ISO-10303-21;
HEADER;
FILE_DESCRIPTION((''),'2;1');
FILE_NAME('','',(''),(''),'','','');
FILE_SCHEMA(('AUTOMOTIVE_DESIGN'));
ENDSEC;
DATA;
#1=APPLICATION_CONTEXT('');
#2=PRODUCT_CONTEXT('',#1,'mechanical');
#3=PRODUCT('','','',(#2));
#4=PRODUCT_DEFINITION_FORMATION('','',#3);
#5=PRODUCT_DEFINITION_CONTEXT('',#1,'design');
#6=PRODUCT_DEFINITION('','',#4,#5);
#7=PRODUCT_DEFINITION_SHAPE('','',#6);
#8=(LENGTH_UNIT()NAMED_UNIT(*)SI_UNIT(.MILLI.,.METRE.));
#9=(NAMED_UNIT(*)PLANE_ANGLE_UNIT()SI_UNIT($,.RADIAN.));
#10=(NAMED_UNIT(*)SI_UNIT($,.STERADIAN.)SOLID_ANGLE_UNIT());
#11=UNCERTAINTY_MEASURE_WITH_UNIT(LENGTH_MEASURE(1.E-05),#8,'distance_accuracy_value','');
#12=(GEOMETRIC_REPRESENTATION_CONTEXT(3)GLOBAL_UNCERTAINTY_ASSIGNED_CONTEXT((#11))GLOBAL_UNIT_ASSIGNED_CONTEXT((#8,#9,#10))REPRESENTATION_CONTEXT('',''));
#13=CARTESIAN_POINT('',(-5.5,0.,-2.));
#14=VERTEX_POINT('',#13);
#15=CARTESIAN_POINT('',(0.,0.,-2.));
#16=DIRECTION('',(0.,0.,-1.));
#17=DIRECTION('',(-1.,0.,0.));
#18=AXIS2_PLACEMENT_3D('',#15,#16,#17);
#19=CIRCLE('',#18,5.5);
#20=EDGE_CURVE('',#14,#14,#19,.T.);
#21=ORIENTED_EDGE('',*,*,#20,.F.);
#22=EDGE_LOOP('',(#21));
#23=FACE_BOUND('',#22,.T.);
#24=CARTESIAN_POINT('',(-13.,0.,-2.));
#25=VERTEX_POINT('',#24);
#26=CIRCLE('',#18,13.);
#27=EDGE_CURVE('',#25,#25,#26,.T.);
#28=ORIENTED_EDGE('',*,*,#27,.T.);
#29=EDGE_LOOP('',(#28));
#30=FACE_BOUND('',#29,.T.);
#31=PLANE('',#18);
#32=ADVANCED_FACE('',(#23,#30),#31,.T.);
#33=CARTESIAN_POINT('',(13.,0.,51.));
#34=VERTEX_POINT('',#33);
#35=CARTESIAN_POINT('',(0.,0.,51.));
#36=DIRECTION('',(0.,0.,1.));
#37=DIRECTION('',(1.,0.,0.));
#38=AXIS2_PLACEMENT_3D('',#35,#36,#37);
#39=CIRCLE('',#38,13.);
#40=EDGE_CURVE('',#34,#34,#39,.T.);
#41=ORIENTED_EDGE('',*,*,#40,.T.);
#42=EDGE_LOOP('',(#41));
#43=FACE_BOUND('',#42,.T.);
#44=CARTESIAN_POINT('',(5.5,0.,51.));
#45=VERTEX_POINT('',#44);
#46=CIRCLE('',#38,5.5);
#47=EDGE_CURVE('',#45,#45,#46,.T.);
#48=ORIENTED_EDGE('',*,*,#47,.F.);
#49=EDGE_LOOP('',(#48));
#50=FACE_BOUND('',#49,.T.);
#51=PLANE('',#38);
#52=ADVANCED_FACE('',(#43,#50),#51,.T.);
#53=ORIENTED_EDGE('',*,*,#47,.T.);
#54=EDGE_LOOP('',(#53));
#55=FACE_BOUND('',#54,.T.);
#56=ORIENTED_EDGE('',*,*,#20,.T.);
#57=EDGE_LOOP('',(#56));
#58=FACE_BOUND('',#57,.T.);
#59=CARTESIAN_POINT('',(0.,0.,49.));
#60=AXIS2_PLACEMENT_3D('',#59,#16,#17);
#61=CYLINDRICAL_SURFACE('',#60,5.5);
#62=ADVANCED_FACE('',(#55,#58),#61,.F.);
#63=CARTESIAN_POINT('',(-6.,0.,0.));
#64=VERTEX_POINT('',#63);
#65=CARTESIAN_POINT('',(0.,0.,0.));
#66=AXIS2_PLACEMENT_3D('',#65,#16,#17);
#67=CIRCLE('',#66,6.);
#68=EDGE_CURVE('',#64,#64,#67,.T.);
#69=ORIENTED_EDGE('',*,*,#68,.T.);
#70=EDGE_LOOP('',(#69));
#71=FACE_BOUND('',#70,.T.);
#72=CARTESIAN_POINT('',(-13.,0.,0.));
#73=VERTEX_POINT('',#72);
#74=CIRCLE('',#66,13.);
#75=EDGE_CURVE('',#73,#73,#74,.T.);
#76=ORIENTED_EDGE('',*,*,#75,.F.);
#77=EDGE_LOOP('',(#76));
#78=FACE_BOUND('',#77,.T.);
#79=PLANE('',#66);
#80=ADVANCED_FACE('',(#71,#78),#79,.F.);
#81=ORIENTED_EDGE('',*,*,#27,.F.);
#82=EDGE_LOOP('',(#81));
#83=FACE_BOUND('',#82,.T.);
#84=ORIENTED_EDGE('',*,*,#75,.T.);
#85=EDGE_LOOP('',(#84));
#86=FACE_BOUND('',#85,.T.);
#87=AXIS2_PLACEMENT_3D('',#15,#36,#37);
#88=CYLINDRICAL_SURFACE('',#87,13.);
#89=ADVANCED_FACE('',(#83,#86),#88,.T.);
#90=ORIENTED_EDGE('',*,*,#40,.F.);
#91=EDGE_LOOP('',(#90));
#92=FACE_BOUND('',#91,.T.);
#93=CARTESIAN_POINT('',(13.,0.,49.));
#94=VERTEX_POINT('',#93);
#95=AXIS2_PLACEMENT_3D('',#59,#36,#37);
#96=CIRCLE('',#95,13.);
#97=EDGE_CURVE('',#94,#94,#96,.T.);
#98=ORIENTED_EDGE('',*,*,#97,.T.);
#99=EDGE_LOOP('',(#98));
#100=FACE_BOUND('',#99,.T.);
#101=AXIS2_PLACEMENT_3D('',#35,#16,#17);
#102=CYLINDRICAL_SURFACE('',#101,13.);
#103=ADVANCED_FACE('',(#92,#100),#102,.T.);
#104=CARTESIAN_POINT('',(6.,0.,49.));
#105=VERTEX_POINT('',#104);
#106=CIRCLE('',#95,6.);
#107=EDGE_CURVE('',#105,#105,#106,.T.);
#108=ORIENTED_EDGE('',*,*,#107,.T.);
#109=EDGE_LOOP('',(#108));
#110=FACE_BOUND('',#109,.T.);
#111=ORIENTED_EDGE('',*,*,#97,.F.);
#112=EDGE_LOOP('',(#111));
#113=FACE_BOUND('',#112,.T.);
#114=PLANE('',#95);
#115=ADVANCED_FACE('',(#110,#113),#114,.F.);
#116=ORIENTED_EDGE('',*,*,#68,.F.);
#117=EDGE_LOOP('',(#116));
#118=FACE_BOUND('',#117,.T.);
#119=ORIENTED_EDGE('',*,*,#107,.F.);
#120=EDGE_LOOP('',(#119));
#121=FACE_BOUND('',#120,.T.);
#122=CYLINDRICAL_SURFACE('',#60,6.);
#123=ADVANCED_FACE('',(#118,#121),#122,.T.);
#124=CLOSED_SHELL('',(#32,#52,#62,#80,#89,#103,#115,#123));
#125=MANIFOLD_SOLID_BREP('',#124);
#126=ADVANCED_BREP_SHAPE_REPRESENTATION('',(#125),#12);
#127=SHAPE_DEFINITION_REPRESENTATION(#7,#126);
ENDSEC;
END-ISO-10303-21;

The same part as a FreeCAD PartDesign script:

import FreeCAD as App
import Part
import Sketcher
Q = App.Units.Quantity

doc = App.newDocument("Part")
body = doc.addObject("PartDesign::Body", "Body")

# Sketch on XY plane
sketch1 = doc.addObject("Sketcher::SketchObject", "Sketch")
body.addObject(sketch1)
sketch1.AttachmentSupport = (doc.XY_Plane, [""])
sketch1.MapMode = "FlatFace"
sketch1.addGeometry([
    Part.Circle(App.Vector(0, 0, 0), App.Vector(0, 0, 1), 6),
    Part.Circle(App.Vector(0, 0, 0), App.Vector(0, 0, 1), 6),
], False)
sketch1.addConstraint([
    Sketcher.Constraint("Coincident", 0, 3, -1, 1),
    Sketcher.Constraint("Coincident", 1, 3, -1, 1),
    Sketcher.Constraint("Diameter", 0, Q("12 mm")),
    Sketcher.Constraint("Diameter", 1, Q("11 mm")),
])
pad1 = doc.addObject("PartDesign::Pad", "Pad")
body.addObject(pad1)
pad1.Profile = sketch1
pad1.Length = 49

# Sketch on XY plane
sketch2 = doc.addObject("Sketcher::SketchObject", "Sketch001")
body.addObject(sketch2)
sketch2.AttachmentSupport = (doc.XY_Plane, [""])
sketch2.MapMode = "FlatFace"
sketch2.AttachmentOffset = App.Placement(App.Vector(0, 0, 49), App.Rotation())
sketch2.addGeometry([
    Part.Circle(App.Vector(0, 0, 0), App.Vector(0, 0, 1), 13),
    Part.Circle(App.Vector(0, 0, 0), App.Vector(0, 0, 1), 6),
], False)
sketch2.addConstraint([
    Sketcher.Constraint("Coincident", 0, 3, -1, 1),
    Sketcher.Constraint("Coincident", 1, 3, -1, 1),
    Sketcher.Constraint("Diameter", 0, Q("26 mm")),
    Sketcher.Constraint("Diameter", 1, Q("11 mm")),
])
pad2 = doc.addObject("PartDesign::Pad", "Pad001")
body.addObject(pad2)
pad2.Profile = sketch2
pad2.Length = 2

# Sketch on XY plane
sketch3 = doc.addObject("Sketcher::SketchObject", "Sketch002")
body.addObject(sketch3)
sketch3.AttachmentSupport = (doc.XY_Plane, [""])
sketch3.MapMode = "FlatFace"
sketch3.AttachmentOffset = App.Placement(App.Vector(0, 0, -2), App.Rotation())
sketch3.addGeometry([
    Part.Circle(App.Vector(0, 0, 0), App.Vector(0, 0, 1), 13),
    Part.Circle(App.Vector(0, 0, 0), App.Vector(0, 0, 1), 6),
], False)
sketch3.addConstraint([
    Sketcher.Constraint("Coincident", 0, 3, -1, 1),
    Sketcher.Constraint("Coincident", 1, 3, -1, 1),
    Sketcher.Constraint("Diameter", 0, Q("26 mm")),
    Sketcher.Constraint("Diameter", 1, Q("11 mm")),
])
pad3 = doc.addObject("PartDesign::Pad", "Pad002")
body.addObject(pad3)
pad3.Profile = sketch3
pad3.Length = 2

doc.recompute()
